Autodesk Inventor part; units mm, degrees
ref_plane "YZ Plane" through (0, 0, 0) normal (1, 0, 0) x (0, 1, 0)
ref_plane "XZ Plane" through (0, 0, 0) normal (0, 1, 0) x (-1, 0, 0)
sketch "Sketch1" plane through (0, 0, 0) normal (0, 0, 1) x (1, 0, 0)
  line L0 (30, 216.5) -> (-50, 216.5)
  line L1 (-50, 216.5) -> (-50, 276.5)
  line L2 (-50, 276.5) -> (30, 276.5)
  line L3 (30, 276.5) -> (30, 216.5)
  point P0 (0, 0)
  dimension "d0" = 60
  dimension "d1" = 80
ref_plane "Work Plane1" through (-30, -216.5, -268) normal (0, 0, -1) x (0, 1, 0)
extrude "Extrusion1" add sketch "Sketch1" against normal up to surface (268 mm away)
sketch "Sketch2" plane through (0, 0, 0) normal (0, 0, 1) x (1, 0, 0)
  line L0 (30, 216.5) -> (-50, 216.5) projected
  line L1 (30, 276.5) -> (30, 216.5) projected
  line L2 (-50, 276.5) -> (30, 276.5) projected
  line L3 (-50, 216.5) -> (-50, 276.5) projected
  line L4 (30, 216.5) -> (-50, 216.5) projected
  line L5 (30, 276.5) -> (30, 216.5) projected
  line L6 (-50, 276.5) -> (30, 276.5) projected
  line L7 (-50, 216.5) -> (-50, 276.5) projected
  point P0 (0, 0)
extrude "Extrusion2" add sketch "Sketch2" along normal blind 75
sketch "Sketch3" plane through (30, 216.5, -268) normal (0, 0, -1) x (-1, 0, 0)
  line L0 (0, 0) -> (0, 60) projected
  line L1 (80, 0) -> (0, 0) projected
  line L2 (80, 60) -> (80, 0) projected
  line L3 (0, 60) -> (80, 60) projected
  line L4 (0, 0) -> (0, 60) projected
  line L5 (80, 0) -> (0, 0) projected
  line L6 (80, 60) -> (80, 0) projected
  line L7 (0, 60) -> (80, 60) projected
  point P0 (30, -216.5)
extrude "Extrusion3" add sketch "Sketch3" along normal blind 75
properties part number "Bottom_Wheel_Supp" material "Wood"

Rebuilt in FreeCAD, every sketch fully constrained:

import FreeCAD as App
import Part
import Sketcher

V = App.Vector
Q = App.Units.Quantity


def add_polygon(sketch, points):
    """Adds a closed chain of lines whose ends are joined by coincident constraints."""
    first, n = sketch.GeometryCount, len(points)
    for a, b in zip(points, points[1:] + points[:1]):
        sketch.addGeometry(Part.LineSegment(App.Vector(*a, 0), App.Vector(*b, 0)), False)
    for i in range(n):
        sketch.addConstraint(Sketcher.Constraint("Coincident", first + i, 2, first + (i + 1) % n, 1))

doc = App.newDocument("Part")
params = doc.addObject("Spreadsheet::Sheet", "Params")
for row, (alias, value) in enumerate([
    ("sketch1_width", "80 mm"),
    ("sketch1_height", "60 mm"),
    ("pad1_length", "268 mm"),
    ("sketch2_width", "80 mm"),
    ("sketch2_height", "60 mm"),
    ("pad2_length", "75 mm"),
    ("sketch3_width", "80 mm"),
    ("sketch3_height", "60 mm"),
    ("pad3_length", "75 mm"),
], start=1):
    params.set(f"A{row}", alias)
    params.set(f"B{row}", "=" + value)
    params.setAlias(f"B{row}", alias)

body = doc.addObject("PartDesign::Body", "Body")

# Sketch on XY plane
sketch1 = body.newObject("Sketcher::SketchObject", "Sketch")
sketch1.AttachmentSupport = (doc.getObject("XY_Plane"), [""])
sketch1.MapMode = "FlatFace"
add_polygon(sketch1, [(-50, 216), (30, 216), (30, 276), (-50, 276)])  # lines 0-3
sketch1.addConstraint([
    Sketcher.Constraint("Horizontal", 0),
    Sketcher.Constraint("Vertical", 1),
    Sketcher.Constraint("Horizontal", 2),
    Sketcher.Constraint("Vertical", 3),
    Sketcher.Constraint("DistanceX", 0, 1, 0, 2, Q("80 mm")),
    Sketcher.Constraint("DistanceY", 1, 1, 1, 2, Q("60 mm")),
    Sketcher.Constraint("DistanceX", -1, 1, 0, 2, Q("30 mm")),
    Sketcher.Constraint("DistanceY", -1, 1, 0, 2, Q("216.5 mm")),
])
sketch1.setExpression("Constraints[8]", "Params.sketch1_width")
sketch1.setExpression("Constraints[9]", "Params.sketch1_height")
pad1 = body.newObject("PartDesign::Pad", "Pad")
pad1.Profile = sketch1
pad1.setExpression("Length", "Params.pad1_length")
pad1.Reversed = True

# Sketch on XY plane
sketch2 = body.newObject("Sketcher::SketchObject", "Sketch001")
sketch2.AttachmentSupport = (doc.getObject("XY_Plane"), [""])
sketch2.MapMode = "FlatFace"
add_polygon(sketch2, [(-50, 216), (30, 216), (30, 276), (-50, 276)])  # lines 0-3
sketch2.addConstraint([
    Sketcher.Constraint("Horizontal", 0),
    Sketcher.Constraint("Vertical", 1),
    Sketcher.Constraint("Horizontal", 2),
    Sketcher.Constraint("Vertical", 3),
    Sketcher.Constraint("DistanceX", 0, 1, 0, 2, Q("80 mm")),
    Sketcher.Constraint("DistanceY", 1, 1, 1, 2, Q("60 mm")),
    Sketcher.Constraint("DistanceX", -1, 1, 0, 2, Q("30 mm")),
    Sketcher.Constraint("DistanceY", -1, 1, 0, 2, Q("216.5 mm")),
])
sketch2.setExpression("Constraints[8]", "Params.sketch2_width")
sketch2.setExpression("Constraints[9]", "Params.sketch2_height")
pad2 = body.newObject("PartDesign::Pad", "Pad001")
pad2.Profile = sketch2
pad2.setExpression("Length", "Params.pad2_length")

# Sketch on XY plane
sketch3 = body.newObject("Sketcher::SketchObject", "Sketch002")
sketch3.AttachmentSupport = (doc.getObject("XY_Plane"), [""])
sketch3.MapMode = "FlatFace"
sketch3.AttachmentOffset = App.Placement(V(0, 0, -268), App.Rotation())
add_polygon(sketch3, [(30, 276), (30, 216), (-50, 216), (-50, 276)])  # lines 0-3
sketch3.addConstraint([
    Sketcher.Constraint("Vertical", 0),
    Sketcher.Constraint("Horizontal", 1),
    Sketcher.Constraint("Vertical", 2),
    Sketcher.Constraint("Horizontal", 3),
    Sketcher.Constraint("DistanceX", 1, 2, 1, 1, Q("80 mm")),
    Sketcher.Constraint("DistanceY", 0, 2, 0, 1, Q("60 mm")),
    Sketcher.Constraint("DistanceX", -1, 1, 0, 2, Q("30 mm")),
    Sketcher.Constraint("DistanceY", -1, 1, 0, 2, Q("216.5 mm")),
])
sketch3.setExpression("Constraints[8]", "Params.sketch3_width")
sketch3.setExpression("Constraints[9]", "Params.sketch3_height")
pad3 = body.newObject("PartDesign::Pad", "Pad002")
pad3.Profile = sketch3
pad3.setExpression("Length", "Params.pad3_length")
pad3.Reversed = True

doc.recompute()
